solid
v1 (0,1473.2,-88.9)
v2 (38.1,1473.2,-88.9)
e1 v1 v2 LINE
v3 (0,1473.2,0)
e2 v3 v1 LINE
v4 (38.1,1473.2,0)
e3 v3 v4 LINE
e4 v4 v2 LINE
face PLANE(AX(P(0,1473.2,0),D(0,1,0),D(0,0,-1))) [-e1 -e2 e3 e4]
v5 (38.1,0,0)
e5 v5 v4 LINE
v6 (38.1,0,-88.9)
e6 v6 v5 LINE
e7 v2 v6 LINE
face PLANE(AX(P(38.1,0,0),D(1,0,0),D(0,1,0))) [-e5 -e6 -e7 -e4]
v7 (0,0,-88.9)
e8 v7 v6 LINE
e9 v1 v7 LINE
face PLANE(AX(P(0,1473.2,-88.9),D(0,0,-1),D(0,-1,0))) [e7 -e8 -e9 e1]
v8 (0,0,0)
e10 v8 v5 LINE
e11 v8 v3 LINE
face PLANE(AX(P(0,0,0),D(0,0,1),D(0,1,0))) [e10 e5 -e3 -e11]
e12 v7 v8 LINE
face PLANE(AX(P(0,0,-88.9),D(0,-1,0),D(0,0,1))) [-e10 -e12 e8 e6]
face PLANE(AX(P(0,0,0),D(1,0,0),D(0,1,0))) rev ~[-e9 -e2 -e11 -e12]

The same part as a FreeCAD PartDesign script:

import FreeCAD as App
import Part
import Sketcher
Q = App.Units.Quantity

doc = App.newDocument("Part")
body = doc.addObject("PartDesign::Body", "Body")

# Sketch on YZ plane
sketch1 = body.newObject("Sketcher::SketchObject", "Sketch")
sketch1.AttachmentSupport = (doc.getObject("YZ_Plane"), [""])
sketch1.MapMode = "FlatFace"
sketch1.addGeometry(Part.LineSegment(App.Vector(1473.2, 0, 0), App.Vector(0, 0, 0)), False)
sketch1.addGeometry(Part.LineSegment(App.Vector(0, 0, 0), App.Vector(0, -88.9, 0)), False)
sketch1.addGeometry(Part.LineSegment(App.Vector(0, -88.9, 0), App.Vector(1473.2, -88.9, 0)), False)
sketch1.addGeometry(Part.LineSegment(App.Vector(1473.2, -88.9, 0), App.Vector(1473.2, 0, 0)), False)
sketch1.addConstraint(Sketcher.Constraint("Coincident", 0, 2, 1, 1))
sketch1.addConstraint(Sketcher.Constraint("Coincident", 1, 2, 2, 1))
sketch1.addConstraint(Sketcher.Constraint("Coincident", 2, 2, 3, 1))
sketch1.addConstraint(Sketcher.Constraint("Coincident", 3, 2, 0, 1))
sketch1.addConstraint(Sketcher.Constraint("Horizontal", 0))
sketch1.addConstraint(Sketcher.Constraint("Vertical", 1))
sketch1.addConstraint(Sketcher.Constraint("Horizontal", 2))
sketch1.addConstraint(Sketcher.Constraint("Vertical", 3))
sketch1.addConstraint(Sketcher.Constraint("Coincident", 0, 2, -1, 1))
sketch1.addConstraint(Sketcher.Constraint("DistanceX", 0, 2, 0, 1, Q("58 in")))
sketch1.addConstraint(Sketcher.Constraint("DistanceY", 1, 2, 1, 1, Q("3.5 in")))
pad1 = body.newObject("PartDesign::Pad", "Pad")
pad1.Profile = sketch1
pad1.Length = Q("1.5 in")

doc.recompute()
